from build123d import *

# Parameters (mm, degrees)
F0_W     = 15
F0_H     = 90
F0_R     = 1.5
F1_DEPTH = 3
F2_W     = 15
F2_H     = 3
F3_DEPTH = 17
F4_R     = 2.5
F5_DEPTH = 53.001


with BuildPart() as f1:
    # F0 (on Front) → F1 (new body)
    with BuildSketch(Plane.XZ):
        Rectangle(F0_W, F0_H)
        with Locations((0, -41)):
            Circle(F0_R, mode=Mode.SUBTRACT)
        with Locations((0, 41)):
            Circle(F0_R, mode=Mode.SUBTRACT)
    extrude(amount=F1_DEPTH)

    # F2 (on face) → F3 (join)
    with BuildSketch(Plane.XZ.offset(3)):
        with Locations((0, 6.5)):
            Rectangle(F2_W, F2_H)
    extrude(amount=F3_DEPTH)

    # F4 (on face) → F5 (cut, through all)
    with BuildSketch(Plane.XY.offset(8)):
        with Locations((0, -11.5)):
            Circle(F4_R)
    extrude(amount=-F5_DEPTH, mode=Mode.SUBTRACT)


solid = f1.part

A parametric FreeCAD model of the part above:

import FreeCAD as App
import Part
import Sketcher
Q = App.Units.Quantity


def add_polygon(sketch, points):
    """Adds a closed chain of lines whose ends are joined by coincident constraints."""
    first, n = sketch.GeometryCount, len(points)
    for a, b in zip(points, points[1:] + points[:1]):
        sketch.addGeometry(Part.LineSegment(App.Vector(*a, 0), App.Vector(*b, 0)), False)
    for i in range(n):
        sketch.addConstraint(Sketcher.Constraint("Coincident", first + i, 2, first + (i + 1) % n, 1))

doc = App.newDocument("Part")
body = doc.addObject("PartDesign::Body", "Body")

# Sketch on XZ plane
sketch1 = body.newObject("Sketcher::SketchObject", "Sketch")
sketch1.AttachmentSupport = (doc.getObject("XZ_Plane"), [""])
sketch1.MapMode = "FlatFace"
add_polygon(sketch1, [(-7.5, 45), (-7.5, -45), (7.5, -45), (7.5, 45)])  # lines 0-3
sketch1.addGeometry(Part.Circle(App.Vector(0, -41, 0), App.Vector(0, 0, 1), 1.5), False)  # 4
sketch1.addGeometry(Part.Circle(App.Vector(0, 41, 0), App.Vector(0, 0, 1), 1.5), False)  # 5
sketch1.addConstraint(Sketcher.Constraint("Vertical", 0))
sketch1.addConstraint(Sketcher.Constraint("Horizontal", 1))
sketch1.addConstraint(Sketcher.Constraint("Vertical", 2))
sketch1.addConstraint(Sketcher.Constraint("Horizontal", 3))
sketch1.addConstraint(Sketcher.Constraint("Equal", 4, 5))
sketch1.addConstraint(Sketcher.Constraint("Symmetric", 4, 3, 5, 3, -1, 1))
sketch1.addConstraint(Sketcher.Constraint("Symmetric", 0, 2, 2, 2, -1, 1))
sketch1.addConstraint(Sketcher.Constraint("PointOnObject", 4, 3, -2))
sketch1.addConstraint(Sketcher.Constraint("Diameter", 4, Q("3 mm")))
sketch1.addConstraint(Sketcher.Constraint("DistanceX", 1, 1, 1, 2, Q("15 mm")))
sketch1.addConstraint(Sketcher.Constraint("DistanceY", 0, 2, 0, 1, Q("90 mm")))
sketch1.addConstraint(Sketcher.Constraint("DistanceY", 4, 3, -1, 1, Q("41 mm")))
pad1 = body.newObject("PartDesign::Pad", "Pad")
pad1.Profile = sketch1
pad1.Length = 3

# Sketch on XZ plane
sketch2 = body.newObject("Sketcher::SketchObject", "Sketch001")
sketch2.AttachmentSupport = (doc.getObject("XZ_Plane"), [""])
sketch2.MapMode = "FlatFace"
sketch2.AttachmentOffset = App.Placement(App.Vector(0, 0, 3), App.Rotation())
add_polygon(sketch2, [(-7.5, 8), (-7.5, 5), (7.5, 5), (7.5, 8)])  # lines 0-3
sketch2.addConstraint(Sketcher.Constraint("Vertical", 0))
sketch2.addConstraint(Sketcher.Constraint("Horizontal", 1))
sketch2.addConstraint(Sketcher.Constraint("Vertical", 2))
sketch2.addConstraint(Sketcher.Constraint("Horizontal", 3))
sketch2.addConstraint(Sketcher.Constraint("DistanceX", 1, 1, 1, 2, Q("15 mm")))
sketch2.addConstraint(Sketcher.Constraint("DistanceY", 0, 2, 0, 1, Q("3 mm")))
sketch2.addConstraint(Sketcher.Constraint("DistanceY", -1, 1, 0, 2, Q("5 mm")))
sketch2.addConstraint(Sketcher.Constraint("DistanceX", 0, 2, -1, 1, Q("7.5 mm")))
pad2 = body.newObject("PartDesign::Pad", "Pad001")
pad2.Profile = sketch2
pad2.Length = 17

# Sketch on XY plane
sketch3 = body.newObject("Sketcher::SketchObject", "Sketch002")
sketch3.AttachmentSupport = (doc.getObject("XY_Plane"), [""])
sketch3.MapMode = "FlatFace"
sketch3.AttachmentOffset = App.Placement(App.Vector(0, 0, 8), App.Rotation())
sketch3.addGeometry(Part.Circle(App.Vector(0, -11.5, 0), App.Vector(0, 0, 1), 2.5), False)
sketch3.addConstraint(Sketcher.Constraint("PointOnObject", 0, 3, -2))
sketch3.addConstraint(Sketcher.Constraint("Diameter", 0, Q("5 mm")))
sketch3.addConstraint(Sketcher.Constraint("DistanceY", 0, 3, -1, 1, Q("11.5 mm")))
pocket1 = body.newObject("PartDesign::Pocket", "Pocket")
pocket1.Profile = sketch3
pocket1.Type = "ThroughAll"

doc.recompute()
